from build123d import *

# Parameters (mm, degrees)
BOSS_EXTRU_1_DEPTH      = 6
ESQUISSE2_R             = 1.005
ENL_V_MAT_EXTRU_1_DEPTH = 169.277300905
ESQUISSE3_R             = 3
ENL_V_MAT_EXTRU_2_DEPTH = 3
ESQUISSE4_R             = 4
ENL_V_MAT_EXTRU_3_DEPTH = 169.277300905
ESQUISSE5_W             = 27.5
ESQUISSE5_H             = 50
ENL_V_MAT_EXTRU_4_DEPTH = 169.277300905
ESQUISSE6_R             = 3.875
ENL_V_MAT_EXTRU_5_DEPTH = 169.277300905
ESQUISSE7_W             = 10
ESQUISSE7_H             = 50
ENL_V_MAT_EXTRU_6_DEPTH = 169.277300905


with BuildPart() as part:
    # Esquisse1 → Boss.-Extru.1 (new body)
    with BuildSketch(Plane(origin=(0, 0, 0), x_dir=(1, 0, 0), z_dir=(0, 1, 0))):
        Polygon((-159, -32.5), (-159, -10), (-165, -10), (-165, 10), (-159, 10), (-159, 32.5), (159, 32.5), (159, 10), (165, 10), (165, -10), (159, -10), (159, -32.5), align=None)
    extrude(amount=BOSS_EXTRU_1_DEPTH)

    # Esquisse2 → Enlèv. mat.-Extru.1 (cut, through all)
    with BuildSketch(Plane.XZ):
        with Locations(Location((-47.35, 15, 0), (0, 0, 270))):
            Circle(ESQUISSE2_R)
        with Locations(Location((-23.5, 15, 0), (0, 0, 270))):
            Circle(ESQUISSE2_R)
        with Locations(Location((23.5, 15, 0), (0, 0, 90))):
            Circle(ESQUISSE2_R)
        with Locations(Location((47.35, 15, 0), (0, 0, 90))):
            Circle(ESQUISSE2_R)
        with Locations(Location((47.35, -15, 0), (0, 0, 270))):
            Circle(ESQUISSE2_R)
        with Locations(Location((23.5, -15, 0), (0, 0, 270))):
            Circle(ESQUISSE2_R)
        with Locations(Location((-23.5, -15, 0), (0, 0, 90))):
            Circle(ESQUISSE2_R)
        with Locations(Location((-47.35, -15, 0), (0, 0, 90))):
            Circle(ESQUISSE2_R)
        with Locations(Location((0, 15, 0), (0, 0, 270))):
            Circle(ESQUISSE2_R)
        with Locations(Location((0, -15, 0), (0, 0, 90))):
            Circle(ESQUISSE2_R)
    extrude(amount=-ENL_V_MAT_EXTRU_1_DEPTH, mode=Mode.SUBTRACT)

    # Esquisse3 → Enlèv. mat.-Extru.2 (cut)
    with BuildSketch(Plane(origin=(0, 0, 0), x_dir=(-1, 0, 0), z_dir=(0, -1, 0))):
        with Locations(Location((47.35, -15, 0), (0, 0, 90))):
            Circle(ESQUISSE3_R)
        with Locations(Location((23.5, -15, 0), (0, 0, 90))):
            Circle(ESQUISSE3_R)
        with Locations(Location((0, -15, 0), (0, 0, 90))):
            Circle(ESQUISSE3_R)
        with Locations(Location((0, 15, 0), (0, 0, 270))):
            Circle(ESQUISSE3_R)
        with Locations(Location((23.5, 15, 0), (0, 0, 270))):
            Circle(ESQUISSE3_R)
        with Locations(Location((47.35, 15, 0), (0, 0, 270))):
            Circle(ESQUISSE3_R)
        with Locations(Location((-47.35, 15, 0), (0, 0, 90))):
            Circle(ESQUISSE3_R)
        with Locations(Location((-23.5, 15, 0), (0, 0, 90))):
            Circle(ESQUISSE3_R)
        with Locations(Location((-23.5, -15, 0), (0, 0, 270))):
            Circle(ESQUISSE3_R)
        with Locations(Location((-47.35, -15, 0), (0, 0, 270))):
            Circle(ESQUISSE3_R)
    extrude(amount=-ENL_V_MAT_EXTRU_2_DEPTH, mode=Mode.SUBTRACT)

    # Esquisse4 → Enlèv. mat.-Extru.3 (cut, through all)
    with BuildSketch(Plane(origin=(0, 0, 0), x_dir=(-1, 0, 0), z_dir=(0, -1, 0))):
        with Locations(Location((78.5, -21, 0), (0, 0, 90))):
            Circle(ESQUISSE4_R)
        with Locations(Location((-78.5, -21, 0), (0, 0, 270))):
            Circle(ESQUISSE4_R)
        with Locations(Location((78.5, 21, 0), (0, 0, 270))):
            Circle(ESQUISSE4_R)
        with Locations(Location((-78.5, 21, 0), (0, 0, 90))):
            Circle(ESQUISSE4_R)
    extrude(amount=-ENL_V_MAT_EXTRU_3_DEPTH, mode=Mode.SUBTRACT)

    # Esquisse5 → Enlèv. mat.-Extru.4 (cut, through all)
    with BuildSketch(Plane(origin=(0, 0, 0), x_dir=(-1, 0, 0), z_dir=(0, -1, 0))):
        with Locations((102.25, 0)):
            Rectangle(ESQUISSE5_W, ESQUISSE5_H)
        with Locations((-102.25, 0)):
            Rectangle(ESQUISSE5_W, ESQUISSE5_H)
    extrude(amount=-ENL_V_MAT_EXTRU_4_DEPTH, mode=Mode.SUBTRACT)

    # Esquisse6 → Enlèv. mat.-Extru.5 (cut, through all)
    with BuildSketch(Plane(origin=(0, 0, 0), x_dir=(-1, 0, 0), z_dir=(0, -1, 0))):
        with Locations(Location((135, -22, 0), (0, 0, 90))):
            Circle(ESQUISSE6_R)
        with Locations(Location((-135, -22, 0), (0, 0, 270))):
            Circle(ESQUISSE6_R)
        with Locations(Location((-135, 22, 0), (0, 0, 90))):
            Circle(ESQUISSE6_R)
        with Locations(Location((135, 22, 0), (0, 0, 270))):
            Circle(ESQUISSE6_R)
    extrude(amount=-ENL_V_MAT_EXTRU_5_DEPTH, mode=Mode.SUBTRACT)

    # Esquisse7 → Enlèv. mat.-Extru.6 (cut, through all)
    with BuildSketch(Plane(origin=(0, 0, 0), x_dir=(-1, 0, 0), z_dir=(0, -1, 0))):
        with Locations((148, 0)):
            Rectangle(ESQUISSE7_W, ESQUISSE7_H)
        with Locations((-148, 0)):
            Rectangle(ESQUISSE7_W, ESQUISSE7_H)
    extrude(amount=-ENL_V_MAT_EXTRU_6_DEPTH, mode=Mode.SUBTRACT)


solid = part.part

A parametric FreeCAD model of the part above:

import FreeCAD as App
import Part
import Sketcher

V = App.Vector
Q = App.Units.Quantity

doc = App.newDocument("Part")
params = doc.addObject("Spreadsheet::Sheet", "Params")
for row, (alias, value) in enumerate([
    ("sketch1_width", "318 mm"),
    ("sketch1_width2", "6 mm"),
    ("sketch1_height", "20 mm"),
    ("sketch1_height2", "22.5 mm"),
    ("pad1_length", "6 mm"),
    ("sketch2_diameter", "2.01 mm"),
    ("sketch3_diameter", "6 mm"),
    ("pocket2_length", "3 mm"),
    ("sketch4_diameter", "8 mm"),
    ("sketch5_height", "50 mm"),
    ("sketch5_width", "27.5 mm"),
    ("sketch6_diameter", "7.75 mm"),
    ("sketch7_width", "10 mm"),
    ("sketch7_height", "50 mm"),
], start=1):
    params.set(f"A{row}", alias)
    params.set(f"B{row}", "=" + value)
    params.setAlias(f"B{row}", alias)

body = doc.addObject("PartDesign::Body", "Body")

sketch1 = body.newObject("Sketcher::SketchObject", "Sketch")
sketch1.AttachmentSupport = (doc.getObject("XZ_Plane"), [""])
sketch1.MapMode = "FlatFace"
sketch1.addGeometry([
    Part.LineSegment(V(-159, 10, 0), V(-159, 32.5, 0)),
    Part.LineSegment(V(-159, 32.5, 0), V(159, 32.5, 0)),
    Part.LineSegment(V(159, 32.5, 0), V(159, 10, 0)),
    Part.LineSegment(V(159, 10, 0), V(165, 10, 0)),
    Part.LineSegment(V(165, 10, 0), V(165, -10, 0)),
    Part.LineSegment(V(165, -10, 0), V(159, -10, 0)),
    Part.LineSegment(V(159, -10, 0), V(159, -32.5, 0)),
    Part.LineSegment(V(159, -32.5, 0), V(-159, -32.5, 0)),
    Part.LineSegment(V(-159, -32.5, 0), V(-159, -10, 0)),
    Part.LineSegment(V(-159, -10, 0), V(-165, -10, 0)),
    Part.LineSegment(V(-165, -10, 0), V(-165, 10, 0)),
    Part.LineSegment(V(-165, 10, 0), V(-159, 10, 0)),
], False)
sketch1.addConstraint([
    Sketcher.Constraint("Coincident", 0, 2, 1, 1),
    Sketcher.Constraint("Coincident", 1, 2, 2, 1),
    Sketcher.Constraint("Coincident", 2, 2, 3, 1),
    Sketcher.Constraint("Coincident", 3, 2, 4, 1),
    Sketcher.Constraint("Coincident", 4, 2, 5, 1),
    Sketcher.Constraint("Coincident", 5, 2, 6, 1),
    Sketcher.Constraint("Coincident", 6, 2, 7, 1),
    Sketcher.Constraint("Coincident", 7, 2, 8, 1),
    Sketcher.Constraint("Coincident", 8, 2, 9, 1),
    Sketcher.Constraint("Coincident", 9, 2, 10, 1),
    Sketcher.Constraint("Coincident", 10, 2, 11, 1),
    Sketcher.Constraint("Coincident", 11, 2, 0, 1),
    Sketcher.Constraint("Vertical", 0),
    Sketcher.Constraint("Horizontal", 1),
    Sketcher.Constraint("Vertical", 2),
    Sketcher.Constraint("Horizontal", 3),
    Sketcher.Constraint("Vertical", 4),
    Sketcher.Constraint("Horizontal", 5),
    Sketcher.Constraint("Vertical", 6),
    Sketcher.Constraint("Horizontal", 7),
    Sketcher.Constraint("Vertical", 8),
    Sketcher.Constraint("Horizontal", 9),
    Sketcher.Constraint("Vertical", 10),
    Sketcher.Constraint("Horizontal", 11),
    Sketcher.Constraint("Symmetric", 0, 2, 6, 2, -1, 1),
    Sketcher.Constraint("Symmetric", 2, 2, 8, 2, -1, 1),
    Sketcher.Constraint("Symmetric", 4, 2, 10, 2, -1, 1),
    Sketcher.Constraint("Symmetric", 5, 2, 8, 2, -2),
    Sketcher.Constraint("DistanceX", 1, 1, 1, 2, Q("318 mm")),
    Sketcher.Constraint("DistanceX", 3, 1, 3, 2, Q("6 mm")),
    Sketcher.Constraint("DistanceY", 4, 2, 4, 1, Q("20 mm")),
    Sketcher.Constraint("DistanceY", 0, 1, 0, 2, Q("22.5 mm")),
])
sketch1.setExpression("Constraints[28]", "Params.sketch1_width")
sketch1.setExpression("Constraints[29]", "Params.sketch1_width2")
sketch1.setExpression("Constraints[30]", "Params.sketch1_height")
sketch1.setExpression("Constraints[31]", "Params.sketch1_height2")
pad1 = body.newObject("PartDesign::Pad", "Pad")
pad1.Profile = sketch1
pad1.setExpression("Length", "Params.pad1_length")
pad1.Reversed = True

sketch2 = body.newObject("Sketcher::SketchObject", "Sketch001")
sketch2.AttachmentSupport = (doc.getObject("XZ_Plane"), [""])
sketch2.MapMode = "FlatFace"
sketch2.addGeometry([
    Part.Circle(V(-47.35, 15, 0), V(0, 0, 1), 1.005),
    Part.Circle(V(-23.5, 15, 0), V(0, 0, 1), 1.005),
    Part.Circle(V(23.5, 15, 0), V(0, 0, 1), 1.005),
    Part.Circle(V(47.35, 15, 0), V(0, 0, 1), 1.005),
    Part.Circle(V(47.35, -15, 0), V(0, 0, 1), 1.005),
    Part.Circle(V(23.5, -15, 0), V(0, 0, 1), 1.005),
    Part.Circle(V(-23.5, -15, 0), V(0, 0, 1), 1.005),
    Part.Circle(V(-47.35, -15, 0), V(0, 0, 1), 1.005),
    Part.Circle(V(0, 15, 0), V(0, 0, 1), 1.005),
    Part.Circle(V(0, -15, 0), V(0, 0, 1), 1.005),
], False)
sketch2.addConstraint([
    Sketcher.Constraint("Equal", 0, 1),
    Sketcher.Constraint("Equal", 1, 2),
    Sketcher.Constraint("Equal", 2, 3),
    Sketcher.Constraint("Equal", 3, 4),
    Sketcher.Constraint("Equal", 4, 5),
    Sketcher.Constraint("Equal", 5, 6),
    Sketcher.Constraint("Equal", 6, 7),
    Sketcher.Constraint("Equal", 7, 8),
    Sketcher.Constraint("Equal", 8, 9),
    Sketcher.Constraint("Symmetric", 0, 3, 4, 3, -1, 1),
    Sketcher.Constraint("Symmetric", 1, 3, 5, 3, -1, 1),
    Sketcher.Constraint("Symmetric", 2, 3, 6, 3, -1, 1),
    Sketcher.Constraint("Symmetric", 3, 3, 7, 3, -1, 1),
    Sketcher.Constraint("Symmetric", 8, 3, 9, 3, -1, 1),
    Sketcher.Constraint("Symmetric", 1, 3, 2, 3, -2),
    Sketcher.Constraint("Symmetric", 0, 3, 3, 3, -2),
    Sketcher.Constraint("PointOnObject", 8, 3, -2),
    Sketcher.Constraint("Horizontal", 0, 3, 1, 3),
    Sketcher.Constraint("Horizontal", 3, 3, 8, 3),
    Sketcher.Constraint("Diameter", 0, Q("2.01 mm")),
    Sketcher.Constraint("DistanceY", -1, 1, 0, 3, Q("15 mm")),
    Sketcher.Constraint("DistanceX", 1, 3, 2, 3, Q("47 mm")),
    Sketcher.Constraint("DistanceX", 0, 3, 3, 3, Q("94.7 mm")),
])
sketch2.setExpression("Constraints[19]", "Params.sketch2_diameter")
pocket1 = body.newObject("PartDesign::Pocket", "Pocket")
pocket1.Profile = sketch2
pocket1.Type = "ThroughAll"

sketch3 = body.newObject("Sketcher::SketchObject", "Sketch002")
sketch3.AttachmentSupport = (doc.getObject("XZ_Plane"), [""])
sketch3.MapMode = "FlatFace"
sketch3.addGeometry([
    Part.Circle(V(-47.35, 15, 0), V(0, 0, 1), 3),
    Part.Circle(V(-23.5, 15, 0), V(0, 0, 1), 3),
    Part.Circle(V(0, 15, 0), V(0, 0, 1), 3),
    Part.Circle(V(0, -15, 0), V(0, 0, 1), 3),
    Part.Circle(V(-23.5, -15, 0), V(0, 0, 1), 3),
    Part.Circle(V(-47.35, -15, 0), V(0, 0, 1), 3),
    Part.Circle(V(47.35, -15, 0), V(0, 0, 1), 3),
    Part.Circle(V(23.5, -15, 0), V(0, 0, 1), 3),
    Part.Circle(V(23.5, 15, 0), V(0, 0, 1), 3),
    Part.Circle(V(47.35, 15, 0), V(0, 0, 1), 3),
], False)
sketch3.addConstraint([
    Sketcher.Constraint("Equal", 0, 1),
    Sketcher.Constraint("Equal", 1, 2),
    Sketcher.Constraint("Equal", 2, 3),
    Sketcher.Constraint("Equal", 3, 4),
    Sketcher.Constraint("Equal", 4, 5),
    Sketcher.Constraint("Equal", 5, 6),
    Sketcher.Constraint("Equal", 6, 7),
    Sketcher.Constraint("Equal", 7, 8),
    Sketcher.Constraint("Equal", 8, 9),
    Sketcher.Constraint("Symmetric", 2, 3, 3, 3, -1, 1),
    Sketcher.Constraint("Symmetric", 0, 3, 6, 3, -1, 1),
    Sketcher.Constraint("Symmetric", 1, 3, 7, 3, -1, 1),
    Sketcher.Constraint("Symmetric", 4, 3, 8, 3, -1, 1),
    Sketcher.Constraint("Symmetric", 5, 3, 9, 3, -1, 1),
    Sketcher.Constraint("Symmetric", 5, 3, 6, 3, -2),
    Sketcher.Constraint("Symmetric", 4, 3, 7, 3, -2),
    Sketcher.Constraint("PointOnObject", 2, 3, -2),
    Sketcher.Constraint("Horizontal", 0, 3, 1, 3),
    Sketcher.Constraint("Horizontal", 1, 3, 2, 3),
    Sketcher.Constraint("Diameter", 0, Q("6 mm")),
    Sketcher.Constraint("DistanceY", -1, 1, 0, 3, Q("15 mm")),
    Sketcher.Constraint("DistanceX", 4, 3, 7, 3, Q("47 mm")),
    Sketcher.Constraint("DistanceX", 5, 3, 6, 3, Q("94.7 mm")),
])
sketch3.setExpression("Constraints[19]", "Params.sketch3_diameter")
pocket2 = body.newObject("PartDesign::Pocket", "Pocket001")
pocket2.Profile = sketch3
pocket2.setExpression("Length", "Params.pocket2_length")

sketch4 = body.newObject("Sketcher::SketchObject", "Sketch003")
sketch4.AttachmentSupport = (doc.getObject("XZ_Plane"), [""])
sketch4.MapMode = "FlatFace"
sketch4.addGeometry([
    Part.Circle(V(-78.5, 21, 0), V(0, 0, 1), 4),
    Part.Circle(V(78.5, 21, 0), V(0, 0, 1), 4),
    Part.Circle(V(-78.5, -21, 0), V(0, 0, 1), 4),
    Part.Circle(V(78.5, -21, 0), V(0, 0, 1), 4),
], False)
sketch4.addConstraint([
    Sketcher.Constraint("Equal", 0, 1),
    Sketcher.Constraint("Equal", 1, 2),
    Sketcher.Constraint("Equal", 2, 3),
    Sketcher.Constraint("Symmetric", 1, 3, 2, 3, -1, 1),
    Sketcher.Constraint("Symmetric", 0, 3, 3, 3, -1, 1),
    Sketcher.Constraint("Symmetric", 0, 3, 1, 3, -2),
    Sketcher.Constraint("Diameter", 0, Q("8 mm")),
    Sketcher.Constraint("DistanceY", -1, 1, 0, 3, Q("21 mm")),
    Sketcher.Constraint("DistanceX", 0, 3, 1, 3, Q("157 mm")),
])
sketch4.setExpression("Constraints[6]", "Params.sketch4_diameter")
pocket3 = body.newObject("PartDesign::Pocket", "Pocket002")
pocket3.Profile = sketch4
pocket3.Type = "ThroughAll"

sketch5 = body.newObject("Sketcher::SketchObject", "Sketch004")
sketch5.AttachmentSupport = (doc.getObject("XZ_Plane"), [""])
sketch5.MapMode = "FlatFace"
sketch5.addGeometry([
    Part.LineSegment(V(-88.5, -25, 0), V(-88.5, 25, 0)),
    Part.LineSegment(V(-88.5, 25, 0), V(-116, 25, 0)),
    Part.LineSegment(V(-116, 25, 0), V(-116, -25, 0)),
    Part.LineSegment(V(-116, -25, 0), V(-88.5, -25, 0)),
    Part.LineSegment(V(116, -25, 0), V(116, 25, 0)),
    Part.LineSegment(V(116, 25, 0), V(88.5, 25, 0)),
    Part.LineSegment(V(88.5, 25, 0), V(88.5, -25, 0)),
    Part.LineSegment(V(88.5, -25, 0), V(116, -25, 0)),
], False)
sketch5.addConstraint([
    Sketcher.Constraint("Coincident", 0, 2, 1, 1),
    Sketcher.Constraint("Coincident", 1, 2, 2, 1),
    Sketcher.Constraint("Coincident", 2, 2, 3, 1),
    Sketcher.Constraint("Coincident", 3, 2, 0, 1),
    Sketcher.Constraint("Coincident", 4, 2, 5, 1),
    Sketcher.Constraint("Coincident", 5, 2, 6, 1),
    Sketcher.Constraint("Coincident", 6, 2, 7, 1),
    Sketcher.Constraint("Coincident", 7, 2, 4, 1),
    Sketcher.Constraint("Vertical", 0),
    Sketcher.Constraint("Horizontal", 1),
    Sketcher.Constraint("Vertical", 2),
    Sketcher.Constraint("Horizontal", 3),
    Sketcher.Constraint("Vertical", 4),
    Sketcher.Constraint("Horizontal", 5),
    Sketcher.Constraint("Vertical", 6),
    Sketcher.Constraint("Horizontal", 7),
    Sketcher.Constraint("Symmetric", 2, 2, 4, 2, -1, 1),
    Sketcher.Constraint("Symmetric", 0, 2, 6, 2, -1, 1),
    Sketcher.Constraint("Horizontal", 1, 2, 4, 2),
    Sketcher.Constraint("DistanceY", 0, 1, 0, 2, Q("50 mm")),
    Sketcher.Constraint("DistanceX", 1, 2, 1, 1, Q("27.5 mm")),
    Sketcher.Constraint("DistanceX", 1, 2, -1, 1, Q("116 mm")),
])
sketch5.setExpression("Constraints[19]", "Params.sketch5_height")
sketch5.setExpression("Constraints[20]", "Params.sketch5_width")
pocket4 = body.newObject("PartDesign::Pocket", "Pocket003")
pocket4.Profile = sketch5
pocket4.Type = "ThroughAll"

sketch6 = body.newObject("Sketcher::SketchObject", "Sketch005")
sketch6.AttachmentSupport = (doc.getObject("XZ_Plane"), [""])
sketch6.MapMode = "FlatFace"
sketch6.addGeometry([
    Part.Circle(V(-135, 22, 0), V(0, 0, 1), 3.875),
    Part.Circle(V(135, 22, 0), V(0, 0, 1), 3.875),
    Part.Circle(V(135, -22, 0), V(0, 0, 1), 3.875),
    Part.Circle(V(-135, -22, 0), V(0, 0, 1), 3.875),
], False)
sketch6.addConstraint([
    Sketcher.Constraint("Equal", 0, 1),
    Sketcher.Constraint("Equal", 1, 2),
    Sketcher.Constraint("Equal", 2, 3),
    Sketcher.Constraint("Symmetric", 0, 3, 2, 3, -1, 1),
    Sketcher.Constraint("Symmetric", 1, 3, 3, 3, -1, 1),
    Sketcher.Constraint("Symmetric", 0, 3, 1, 3, -2),
    Sketcher.Constraint("Diameter", 0, Q("7.75 mm")),
    Sketcher.Constraint("DistanceX", 0, 3, -1, 1, Q("135 mm")),
    Sketcher.Constraint("DistanceY", -1, 1, 0, 3, Q("22 mm")),
])
sketch6.setExpression("Constraints[6]", "Params.sketch6_diameter")
pocket5 = body.newObject("PartDesign::Pocket", "Pocket004")
pocket5.Profile = sketch6
pocket5.Type = "ThroughAll"

sketch7 = body.newObject("Sketcher::SketchObject", "Sketch006")
sketch7.AttachmentSupport = (doc.getObject("XZ_Plane"), [""])
sketch7.MapMode = "FlatFace"
sketch7.addGeometry([
    Part.LineSegment(V(-143, -25, 0), V(-143, 25, 0)),
    Part.LineSegment(V(-143, 25, 0), V(-153, 25, 0)),
    Part.LineSegment(V(-153, 25, 0), V(-153, -25, 0)),
    Part.LineSegment(V(-153, -25, 0), V(-143, -25, 0)),
    Part.LineSegment(V(153, -25, 0), V(153, 25, 0)),
    Part.LineSegment(V(153, 25, 0), V(143, 25, 0)),
    Part.LineSegment(V(143, 25, 0), V(143, -25, 0)),
    Part.LineSegment(V(143, -25, 0), V(153, -25, 0)),
], False)
sketch7.addConstraint([
    Sketcher.Constraint("Coincident", 0, 2, 1, 1),
    Sketcher.Constraint("Coincident", 1, 2, 2, 1),
    Sketcher.Constraint("Coincident", 2, 2, 3, 1),
    Sketcher.Constraint("Coincident", 3, 2, 0, 1),
    Sketcher.Constraint("Coincident", 4, 2, 5, 1),
    Sketcher.Constraint("Coincident", 5, 2, 6, 1),
    Sketcher.Constraint("Coincident", 6, 2, 7, 1),
    Sketcher.Constraint("Coincident", 7, 2, 4, 1),
    Sketcher.Constraint("Vertical", 0),
    Sketcher.Constraint("Horizontal", 1),
    Sketcher.Constraint("Vertical", 2),
    Sketcher.Constraint("Horizontal", 3),
    Sketcher.Constraint("Vertical", 4),
    Sketcher.Constraint("Horizontal", 5),
    Sketcher.Constraint("Vertical", 6),
    Sketcher.Constraint("Horizontal", 7),
    Sketcher.Constraint("Symmetric", 2, 2, 4, 2, -1, 1),
    Sketcher.Constraint("Symmetric", 0, 2, 6, 2, -1, 1),
    Sketcher.Constraint("Horizontal", 1, 2, 4, 2),
    Sketcher.Constraint("DistanceX", 1, 2, 1, 1, Q("10 mm")),
    Sketcher.Constraint("DistanceY", 0, 1, 0, 2, Q("50 mm")),
    Sketcher.Constraint("DistanceX", 0, 2, -1, 1, Q("143 mm")),
])
sketch7.setExpression("Constraints[19]", "Params.sketch7_width")
sketch7.setExpression("Constraints[20]", "Params.sketch7_height")
pocket6 = body.newObject("PartDesign::Pocket", "Pocket005")
pocket6.Profile = sketch7
pocket6.Type = "ThroughAll"

doc.recompute()
